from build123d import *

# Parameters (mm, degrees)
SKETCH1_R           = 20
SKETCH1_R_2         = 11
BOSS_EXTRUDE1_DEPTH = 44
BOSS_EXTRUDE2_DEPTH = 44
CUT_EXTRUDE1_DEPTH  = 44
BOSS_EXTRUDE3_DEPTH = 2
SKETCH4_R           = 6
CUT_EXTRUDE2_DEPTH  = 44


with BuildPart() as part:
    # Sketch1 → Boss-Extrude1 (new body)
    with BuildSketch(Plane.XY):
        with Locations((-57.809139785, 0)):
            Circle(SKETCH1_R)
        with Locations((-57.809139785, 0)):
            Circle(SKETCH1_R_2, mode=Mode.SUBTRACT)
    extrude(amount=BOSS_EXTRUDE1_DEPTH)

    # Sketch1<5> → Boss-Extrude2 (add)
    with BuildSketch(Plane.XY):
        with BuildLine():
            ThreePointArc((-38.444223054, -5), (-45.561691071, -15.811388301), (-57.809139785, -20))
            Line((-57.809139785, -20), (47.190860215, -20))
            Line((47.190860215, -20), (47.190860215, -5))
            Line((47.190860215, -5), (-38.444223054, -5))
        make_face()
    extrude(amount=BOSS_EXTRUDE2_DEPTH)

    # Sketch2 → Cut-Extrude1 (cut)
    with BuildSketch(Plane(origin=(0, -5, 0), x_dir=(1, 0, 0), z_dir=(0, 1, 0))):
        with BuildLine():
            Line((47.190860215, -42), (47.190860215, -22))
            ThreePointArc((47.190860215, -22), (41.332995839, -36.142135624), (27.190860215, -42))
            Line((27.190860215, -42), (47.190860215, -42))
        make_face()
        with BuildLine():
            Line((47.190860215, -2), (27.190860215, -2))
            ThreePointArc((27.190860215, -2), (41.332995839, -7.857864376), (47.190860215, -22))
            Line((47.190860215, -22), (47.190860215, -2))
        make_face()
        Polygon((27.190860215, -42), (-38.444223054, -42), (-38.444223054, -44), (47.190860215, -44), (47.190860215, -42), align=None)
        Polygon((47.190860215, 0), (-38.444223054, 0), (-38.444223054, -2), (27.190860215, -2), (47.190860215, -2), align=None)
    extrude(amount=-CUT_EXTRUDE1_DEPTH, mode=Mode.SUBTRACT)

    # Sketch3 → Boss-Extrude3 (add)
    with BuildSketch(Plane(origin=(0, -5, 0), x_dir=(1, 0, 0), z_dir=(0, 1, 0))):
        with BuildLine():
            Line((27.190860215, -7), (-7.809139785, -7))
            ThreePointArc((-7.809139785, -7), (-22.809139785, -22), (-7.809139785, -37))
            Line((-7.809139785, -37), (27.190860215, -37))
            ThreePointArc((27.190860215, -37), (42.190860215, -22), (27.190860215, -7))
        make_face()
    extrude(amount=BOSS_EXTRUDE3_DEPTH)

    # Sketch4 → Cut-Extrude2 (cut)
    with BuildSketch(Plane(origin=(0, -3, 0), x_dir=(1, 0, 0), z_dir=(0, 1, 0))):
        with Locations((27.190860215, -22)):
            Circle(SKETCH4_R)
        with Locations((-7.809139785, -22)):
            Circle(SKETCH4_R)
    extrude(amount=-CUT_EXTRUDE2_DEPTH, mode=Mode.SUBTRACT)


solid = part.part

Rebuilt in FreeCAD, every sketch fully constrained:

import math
import FreeCAD as App
import Part
import Sketcher
from FreeCAD import Vector

doc = App.newDocument("Part")
body = doc.addObject("PartDesign::Body", "Body")

# Sketch on XY plane
sketch1 = body.newObject("Sketcher::SketchObject", "Sketch")
sketch1.AttachmentSupport = (doc.getObject("XY_Plane"), [""])
sketch1.MapMode = "FlatFace"
sketch1.addGeometry([
    Part.Circle(Vector(-57.80914, 0, 0), Vector(0, 0, 1), 20),
    Part.Circle(Vector(-57.80914, 0, 0), Vector(0, 0, 1), 11),
], False)
sketch1.addConstraint([
    Sketcher.Constraint("Coincident", 1, 3, 0, 3),
    Sketcher.Constraint("PointOnObject", 0, 3, -1),
    Sketcher.Constraint("Diameter", 0, 40.0),
    Sketcher.Constraint("Diameter", 1, 22.0),
    Sketcher.Constraint("DistanceX", 0, 3, -1, 1, 57.80914),
])
pad1 = body.newObject("PartDesign::Pad", "Pad")
pad1.Profile = sketch1
pad1.Length = 44

# Sketch on XY plane
sketch2 = body.newObject("Sketcher::SketchObject", "Sketch001")
sketch2.AttachmentSupport = (doc.getObject("XY_Plane"), [""])
sketch2.MapMode = "FlatFace"
sketch2.addGeometry([
    Part.ArcOfCircle(Part.Circle(Vector(-57.80914, 0, 0), Vector(0, 0, 1), 20), math.radians(-90), math.radians(-14.477512)),
    Part.LineSegment(Vector(-57.80914, -20, 0), Vector(47.19086, -20, 0)),
    Part.LineSegment(Vector(47.19086, -20, 0), Vector(47.19086, -5, 0)),
    Part.LineSegment(Vector(47.19086, -5, 0), Vector(-38.444223, -5, 0)),
], False)
sketch2.addConstraint([
    Sketcher.Constraint("Tangent", 0, 1, 1, 1),
    Sketcher.Constraint("Coincident", 1, 2, 2, 1),
    Sketcher.Constraint("Coincident", 2, 2, 3, 1),
    Sketcher.Constraint("Coincident", 3, 2, 0, 2),
    Sketcher.Constraint("Horizontal", 1),
    Sketcher.Constraint("Vertical", 2),
    Sketcher.Constraint("Horizontal", 3),
    Sketcher.Constraint("PointOnObject", 0, 3, -1),
    Sketcher.Constraint("Radius", 0, 20.0),
    Sketcher.Constraint("DistanceX", 1, 1, 1, 2, 105.0),
    Sketcher.Constraint("DistanceY", 2, 1, 2, 2, 15.0),
    Sketcher.Constraint("DistanceX", 0, 3, -1, 1, 57.80914),
])
pad2 = body.newObject("PartDesign::Pad", "Pad001")
pad2.Profile = sketch2
pad2.Length = 44

# Sketch on XZ plane
sketch3 = body.newObject("Sketcher::SketchObject", "Sketch002")
sketch3.AttachmentSupport = (doc.getObject("XZ_Plane"), [""])
sketch3.MapMode = "FlatFace"
sketch3.AttachmentOffset = App.Placement(Vector(0, 0, 5), App.Rotation())
sketch3.addGeometry([
    Part.ArcOfCircle(Part.Circle(Vector(27.19086, 22, 0), Vector(0, 0, 1), 20), math.radians(0), math.radians(90)),  # 0
    Part.LineSegment(Vector(27.19086, 42, 0), Vector(-38.444223, 42, 0)),  # 1
    Part.LineSegment(Vector(-38.444223, 42, 0), Vector(-38.444223, 44, 0)),  # 2
    Part.LineSegment(Vector(-38.444223, 44, 0), Vector(47.19086, 44, 0)),  # 3
    Part.LineSegment(Vector(47.19086, 44, 0), Vector(47.19086, 22, 0)),  # 4
    Part.ArcOfCircle(Part.Circle(Vector(27.19086, 22, 0), Vector(0, 0, 1), 20), math.radians(-90), math.radians(0)),  # 5
    Part.LineSegment(Vector(47.19086, 22, 0), Vector(47.19086, 0, 0)),  # 6
    Part.LineSegment(Vector(47.19086, 0, 0), Vector(-38.444223, 0, 0)),  # 7
    Part.LineSegment(Vector(-38.444223, 0, 0), Vector(-38.444223, 2, 0)),  # 8
    Part.LineSegment(Vector(-38.444223, 2, 0), Vector(27.19086, 2, 0)),  # 9
], False)
sketch3.addConstraint([
    Sketcher.Constraint("Tangent", 0, 2, 1, 1),
    Sketcher.Constraint("Coincident", 1, 2, 2, 1),
    Sketcher.Constraint("Coincident", 2, 2, 3, 1),
    Sketcher.Constraint("Coincident", 3, 2, 4, 1),
    Sketcher.Constraint("Tangent", 4, 2, 0, 1),
    Sketcher.Constraint("Tangent", 5, 2, 6, 1),
    Sketcher.Constraint("Coincident", 6, 2, 7, 1),
    Sketcher.Constraint("Coincident", 7, 2, 8, 1),
    Sketcher.Constraint("Coincident", 8, 2, 9, 1),
    Sketcher.Constraint("Tangent", 9, 2, 5, 1),
    Sketcher.Constraint("Horizontal", 1),
    Sketcher.Constraint("Vertical", 2),
    Sketcher.Constraint("Horizontal", 3),
    Sketcher.Constraint("Vertical", 4),
    Sketcher.Constraint("Vertical", 6),
    Sketcher.Constraint("Horizontal", 7),
    Sketcher.Constraint("Vertical", 8),
    Sketcher.Constraint("Horizontal", 9),
    Sketcher.Constraint("Coincident", 5, 3, 0, 3),
    Sketcher.Constraint("Equal", 0, 5),
    Sketcher.Constraint("PointOnObject", 6, 2, -1),
    Sketcher.Constraint("Vertical", 2, 2, 7, 2),
    Sketcher.Constraint("Equal", 4, 6),
    Sketcher.Constraint("Radius", 0, 20.0),
    Sketcher.Constraint("DistanceY", 2, 1, 2, 2, 2.0),
    Sketcher.Constraint("DistanceX", 1, 2, 1, 1, 65.635083),
    Sketcher.Constraint("DistanceX", -1, 1, 0, 3, 27.19086),
])
pocket1 = body.newObject("PartDesign::Pocket", "Pocket")
pocket1.Profile = sketch3
pocket1.Length = 44
pocket1.Reversed = True

# Sketch on XZ plane
sketch4 = body.newObject("Sketcher::SketchObject", "Sketch003")
sketch4.AttachmentSupport = (doc.getObject("XZ_Plane"), [""])
sketch4.MapMode = "FlatFace"
sketch4.AttachmentOffset = App.Placement(Vector(0, 0, 5), App.Rotation())
sketch4.addGeometry([
    Part.LineSegment(Vector(27.19086, 7, 0), Vector(-7.80914, 7, 0)),
    Part.ArcOfCircle(Part.Circle(Vector(-7.80914, 22, 0), Vector(0, 0, 1), 15), math.radians(90), math.radians(270)),
    Part.LineSegment(Vector(-7.80914, 37, 0), Vector(27.19086, 37, 0)),
    Part.ArcOfCircle(Part.Circle(Vector(27.19086, 22, 0), Vector(0, 0, 1), 15), math.radians(-90), math.radians(90)),
], False)
sketch4.addConstraint([
    Sketcher.Constraint("Tangent", 0, 2, 1, 2),
    Sketcher.Constraint("Tangent", 1, 1, 2, 1),
    Sketcher.Constraint("Tangent", 2, 2, 3, 2),
    Sketcher.Constraint("Tangent", 3, 1, 0, 1),
    Sketcher.Constraint("Horizontal", 0),
    Sketcher.Constraint("Horizontal", 2),
    Sketcher.Constraint("Radius", 1, 15.0),
    Sketcher.Constraint("DistanceX", 0, 2, 0, 1, 35.0),
    Sketcher.Constraint("DistanceY", -1, 1, 1, 3, 22.0),
    Sketcher.Constraint("DistanceX", 1, 3, -1, 1, 7.80914),
])
pad3 = body.newObject("PartDesign::Pad", "Pad002")
pad3.Profile = sketch4
pad3.Length = 2
pad3.Reversed = True

# Sketch on XZ plane
sketch5 = body.newObject("Sketcher::SketchObject", "Sketch004")
sketch5.AttachmentSupport = (doc.getObject("XZ_Plane"), [""])
sketch5.MapMode = "FlatFace"
sketch5.AttachmentOffset = App.Placement(Vector(0, 0, 3), App.Rotation())
sketch5.addGeometry([
    Part.Circle(Vector(27.19086, 22, 0), Vector(0, 0, 1), 6),
    Part.Circle(Vector(-7.80914, 22, 0), Vector(0, 0, 1), 6),
], False)
sketch5.addConstraint([
    Sketcher.Constraint("Equal", 0, 1),
    Sketcher.Constraint("Horizontal", 0, 3, 1, 3),
    Sketcher.Constraint("Diameter", 0, 12.0),
    Sketcher.Constraint("DistanceY", -1, 1, 0, 3, 22.0),
    Sketcher.Constraint("DistanceX", 1, 3, 0, 3, 35.0),
    Sketcher.Constraint("DistanceX", -1, 1, 0, 3, 27.19086),
])
pocket2 = body.newObject("PartDesign::Pocket", "Pocket001")
pocket2.Profile = sketch5
pocket2.Length = 44
pocket2.Reversed = True

doc.recompute()
